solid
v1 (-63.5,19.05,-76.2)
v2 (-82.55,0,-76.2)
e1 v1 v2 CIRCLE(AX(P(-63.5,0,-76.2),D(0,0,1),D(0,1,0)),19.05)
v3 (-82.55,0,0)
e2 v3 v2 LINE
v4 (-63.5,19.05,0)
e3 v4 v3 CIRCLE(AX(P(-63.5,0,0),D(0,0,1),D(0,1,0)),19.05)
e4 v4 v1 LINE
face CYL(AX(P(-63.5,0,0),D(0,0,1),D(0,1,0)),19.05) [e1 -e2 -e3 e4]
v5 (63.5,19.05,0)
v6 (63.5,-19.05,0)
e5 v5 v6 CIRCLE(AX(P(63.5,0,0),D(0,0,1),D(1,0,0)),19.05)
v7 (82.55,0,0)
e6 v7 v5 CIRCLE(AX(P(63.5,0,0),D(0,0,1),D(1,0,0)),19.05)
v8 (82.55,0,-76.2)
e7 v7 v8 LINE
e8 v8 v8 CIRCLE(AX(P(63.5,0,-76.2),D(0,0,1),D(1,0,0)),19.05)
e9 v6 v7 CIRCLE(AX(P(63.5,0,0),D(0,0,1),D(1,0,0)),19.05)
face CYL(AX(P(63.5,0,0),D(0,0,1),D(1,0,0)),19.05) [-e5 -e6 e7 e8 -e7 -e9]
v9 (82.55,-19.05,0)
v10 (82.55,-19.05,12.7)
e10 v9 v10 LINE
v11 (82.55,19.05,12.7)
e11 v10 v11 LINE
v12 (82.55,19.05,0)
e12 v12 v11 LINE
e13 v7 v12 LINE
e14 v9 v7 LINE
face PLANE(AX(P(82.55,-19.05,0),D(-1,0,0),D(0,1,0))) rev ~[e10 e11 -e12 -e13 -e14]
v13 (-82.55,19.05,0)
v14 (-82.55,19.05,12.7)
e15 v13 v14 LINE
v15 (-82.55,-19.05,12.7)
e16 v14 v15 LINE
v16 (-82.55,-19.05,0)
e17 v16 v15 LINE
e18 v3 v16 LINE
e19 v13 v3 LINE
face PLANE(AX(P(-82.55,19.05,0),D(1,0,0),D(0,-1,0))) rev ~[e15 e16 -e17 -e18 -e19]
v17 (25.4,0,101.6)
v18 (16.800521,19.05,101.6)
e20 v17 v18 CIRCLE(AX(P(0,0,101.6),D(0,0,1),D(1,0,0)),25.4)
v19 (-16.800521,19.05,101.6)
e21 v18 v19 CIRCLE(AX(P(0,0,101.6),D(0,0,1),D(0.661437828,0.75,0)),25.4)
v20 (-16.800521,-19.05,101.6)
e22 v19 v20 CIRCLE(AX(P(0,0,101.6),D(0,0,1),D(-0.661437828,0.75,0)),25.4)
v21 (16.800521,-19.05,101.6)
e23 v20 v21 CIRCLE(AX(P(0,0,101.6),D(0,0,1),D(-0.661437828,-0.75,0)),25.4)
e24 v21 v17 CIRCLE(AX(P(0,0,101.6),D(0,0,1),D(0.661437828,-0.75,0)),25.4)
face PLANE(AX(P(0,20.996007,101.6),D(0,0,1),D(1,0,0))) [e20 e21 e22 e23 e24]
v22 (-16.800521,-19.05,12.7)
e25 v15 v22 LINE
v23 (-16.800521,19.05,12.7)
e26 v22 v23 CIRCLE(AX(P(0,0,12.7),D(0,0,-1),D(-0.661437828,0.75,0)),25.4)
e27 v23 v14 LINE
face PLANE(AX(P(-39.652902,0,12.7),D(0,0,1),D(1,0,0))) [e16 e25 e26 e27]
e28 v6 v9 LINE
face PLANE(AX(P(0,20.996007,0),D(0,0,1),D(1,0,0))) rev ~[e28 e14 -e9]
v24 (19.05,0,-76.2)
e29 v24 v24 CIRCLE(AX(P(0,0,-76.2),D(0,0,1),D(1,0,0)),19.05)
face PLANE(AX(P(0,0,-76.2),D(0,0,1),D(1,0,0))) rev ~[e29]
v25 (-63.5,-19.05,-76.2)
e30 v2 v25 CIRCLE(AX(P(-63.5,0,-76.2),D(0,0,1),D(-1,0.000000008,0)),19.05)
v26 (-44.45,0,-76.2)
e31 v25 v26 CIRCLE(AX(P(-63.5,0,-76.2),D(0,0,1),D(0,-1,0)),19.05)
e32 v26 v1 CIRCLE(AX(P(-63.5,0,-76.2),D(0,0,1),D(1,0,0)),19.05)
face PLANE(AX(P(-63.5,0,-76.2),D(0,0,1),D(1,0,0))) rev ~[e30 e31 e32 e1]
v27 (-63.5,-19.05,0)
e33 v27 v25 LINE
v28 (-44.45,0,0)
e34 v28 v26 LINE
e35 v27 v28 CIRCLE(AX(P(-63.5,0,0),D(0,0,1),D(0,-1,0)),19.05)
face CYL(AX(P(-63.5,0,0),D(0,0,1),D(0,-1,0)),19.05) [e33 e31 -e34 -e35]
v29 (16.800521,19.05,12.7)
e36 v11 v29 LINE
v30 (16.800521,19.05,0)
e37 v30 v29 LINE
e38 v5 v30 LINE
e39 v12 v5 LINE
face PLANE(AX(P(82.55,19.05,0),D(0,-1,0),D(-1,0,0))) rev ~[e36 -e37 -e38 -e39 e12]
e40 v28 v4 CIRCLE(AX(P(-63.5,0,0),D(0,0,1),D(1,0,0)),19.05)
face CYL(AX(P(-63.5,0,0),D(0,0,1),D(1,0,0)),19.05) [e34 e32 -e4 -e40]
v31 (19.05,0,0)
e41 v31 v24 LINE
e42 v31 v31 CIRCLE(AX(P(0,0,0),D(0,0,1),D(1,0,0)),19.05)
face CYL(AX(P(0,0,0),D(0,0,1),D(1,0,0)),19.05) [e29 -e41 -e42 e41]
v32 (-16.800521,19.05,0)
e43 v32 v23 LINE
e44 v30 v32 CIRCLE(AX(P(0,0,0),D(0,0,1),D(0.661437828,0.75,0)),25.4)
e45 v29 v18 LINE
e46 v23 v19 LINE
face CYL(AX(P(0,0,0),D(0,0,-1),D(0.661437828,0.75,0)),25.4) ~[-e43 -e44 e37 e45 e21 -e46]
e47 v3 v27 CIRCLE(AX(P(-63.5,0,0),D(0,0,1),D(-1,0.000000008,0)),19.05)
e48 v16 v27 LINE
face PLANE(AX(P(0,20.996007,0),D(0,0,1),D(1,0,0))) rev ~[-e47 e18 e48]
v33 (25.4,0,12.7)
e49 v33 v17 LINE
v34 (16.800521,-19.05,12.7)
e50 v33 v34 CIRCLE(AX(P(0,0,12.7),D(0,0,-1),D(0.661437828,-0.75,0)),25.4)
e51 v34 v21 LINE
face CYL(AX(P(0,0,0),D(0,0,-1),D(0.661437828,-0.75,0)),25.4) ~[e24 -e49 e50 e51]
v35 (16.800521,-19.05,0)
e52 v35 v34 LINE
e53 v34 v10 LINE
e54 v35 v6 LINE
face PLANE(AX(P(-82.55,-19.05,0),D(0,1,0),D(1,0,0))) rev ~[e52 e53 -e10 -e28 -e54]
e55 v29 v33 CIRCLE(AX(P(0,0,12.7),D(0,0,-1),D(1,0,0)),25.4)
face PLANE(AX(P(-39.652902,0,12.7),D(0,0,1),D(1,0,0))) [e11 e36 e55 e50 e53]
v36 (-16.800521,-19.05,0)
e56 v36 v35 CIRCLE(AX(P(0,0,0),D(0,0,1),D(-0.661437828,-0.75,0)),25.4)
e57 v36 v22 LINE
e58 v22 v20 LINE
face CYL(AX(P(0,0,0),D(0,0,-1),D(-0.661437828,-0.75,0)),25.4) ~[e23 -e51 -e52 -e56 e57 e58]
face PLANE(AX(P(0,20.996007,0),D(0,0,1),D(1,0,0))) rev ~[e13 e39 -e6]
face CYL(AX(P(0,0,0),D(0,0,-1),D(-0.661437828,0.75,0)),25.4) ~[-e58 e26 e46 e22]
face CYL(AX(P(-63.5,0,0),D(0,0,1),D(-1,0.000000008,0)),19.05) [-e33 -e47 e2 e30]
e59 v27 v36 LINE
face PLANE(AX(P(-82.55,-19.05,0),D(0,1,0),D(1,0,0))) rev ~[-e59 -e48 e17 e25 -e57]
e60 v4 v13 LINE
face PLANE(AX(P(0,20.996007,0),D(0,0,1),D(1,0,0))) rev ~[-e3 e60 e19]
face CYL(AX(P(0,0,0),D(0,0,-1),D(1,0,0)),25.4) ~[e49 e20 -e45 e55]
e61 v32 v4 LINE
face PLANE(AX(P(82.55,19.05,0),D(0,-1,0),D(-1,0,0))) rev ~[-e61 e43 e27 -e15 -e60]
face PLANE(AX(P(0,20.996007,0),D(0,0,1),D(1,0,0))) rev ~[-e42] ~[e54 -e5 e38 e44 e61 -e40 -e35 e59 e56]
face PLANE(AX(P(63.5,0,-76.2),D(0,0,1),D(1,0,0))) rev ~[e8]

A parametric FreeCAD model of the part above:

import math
import FreeCAD as App
import Part
import Sketcher
from FreeCAD import Vector
Q = App.Units.Quantity


def add_polygon(sketch, points):
    """Adds a closed chain of lines whose ends are joined by coincident constraints."""
    first, n = sketch.GeometryCount, len(points)
    for a, b in zip(points, points[1:] + points[:1]):
        sketch.addGeometry(Part.LineSegment(App.Vector(*a, 0), App.Vector(*b, 0)), False)
    for i in range(n):
        sketch.addConstraint(Sketcher.Constraint("Coincident", first + i, 2, first + (i + 1) % n, 1))

doc = App.newDocument("Part")
body = doc.addObject("PartDesign::Body", "Body")

sketch1 = body.newObject("Sketcher::SketchObject", "Sketch")
sketch1.AttachmentSupport = (doc.getObject("XY_Plane"), [""])
sketch1.MapMode = "FlatFace"
add_polygon(sketch1, [(83, -19), (83, 19), (-83, 19), (-83, -19)])
sketch1.addConstraint([
    Sketcher.Constraint("Vertical", 0),
    Sketcher.Constraint("Horizontal", 1),
    Sketcher.Constraint("Vertical", 2),
    Sketcher.Constraint("Horizontal", 3),
    Sketcher.Constraint("Symmetric", 0, 2, 2, 2, -1, 1),
    Sketcher.Constraint("DistanceX", 1, 2, 1, 1, Q("6.5 in")),
    Sketcher.Constraint("DistanceY", 0, 1, 0, 2, Q("1.5 in")),
])
pad1 = body.newObject("PartDesign::Pad", "Pad")
pad1.Profile = sketch1
pad1.Length = Q("0.5 in")

sketch2 = body.newObject("Sketcher::SketchObject", "Sketch001")
sketch2.AttachmentSupport = (doc.getObject("XY_Plane"), [""])
sketch2.MapMode = "FlatFace"
sketch2.addGeometry([
    Part.ArcOfCircle(Part.Circle(Vector(0, 0, 0), Vector(0, 0, 1), 25), math.radians(49), math.radians(131)),
    Part.ArcOfCircle(Part.Circle(Vector(0, 0, 0), Vector(0, 0, 1), 25), math.radians(131), math.radians(229)),
    Part.ArcOfCircle(Part.Circle(Vector(0, 0, 0), Vector(0, 0, 1), 25), math.radians(-131), math.radians(-49)),
    Part.ArcOfCircle(Part.Circle(Vector(0, 0, 0), Vector(0, 0, 1), 25), math.radians(-49), math.radians(0)),
    Part.ArcOfCircle(Part.Circle(Vector(0, 0, 0), Vector(0, 0, 1), 25), math.radians(0), math.radians(49)),
], False)
sketch2.addConstraint([
    Sketcher.Constraint("Tangent", 0, 2, 1, 1),
    Sketcher.Constraint("Tangent", 1, 2, 2, 1),
    Sketcher.Constraint("Tangent", 2, 2, 3, 1),
    Sketcher.Constraint("Tangent", 3, 2, 4, 1),
    Sketcher.Constraint("Tangent", 4, 2, 0, 1),
    Sketcher.Constraint("Coincident", 0, 3, -1, 1),
    Sketcher.Constraint("Coincident", 2, 3, -1, 1),
    Sketcher.Constraint("PointOnObject", 3, 2, -1),
    Sketcher.Constraint("Horizontal", 1, 2, 2, 2),
    Sketcher.Constraint("Horizontal", 0, 2, 4, 2),
    Sketcher.Constraint("Vertical", 0, 2, 1, 2),
    Sketcher.Constraint("Radius", 0, Q("1 in")),
    Sketcher.Constraint("DistanceY", -1, 1, 0, 2, Q("0.75 in")),
])
pad2 = body.newObject("PartDesign::Pad", "Pad001")
pad2.Profile = sketch2
pad2.Length = Q("4 in")

sketch3 = body.newObject("Sketcher::SketchObject", "Sketch002")
sketch3.AttachmentSupport = (doc.getObject("XY_Plane"), [""])
sketch3.MapMode = "FlatFace"
sketch3.addGeometry([
    Part.Circle(Vector(64, 0, 0), Vector(0, 0, 1), 19),
    Part.Circle(Vector(0, 0, 0), Vector(0, 0, 1), 19),
    Part.ArcOfCircle(Part.Circle(Vector(-64, 0, 0), Vector(0, 0, 1), 19), math.radians(0), math.radians(90)),
    Part.ArcOfCircle(Part.Circle(Vector(-64, 0, 0), Vector(0, 0, 1), 19), math.radians(90), math.radians(180)),
    Part.ArcOfCircle(Part.Circle(Vector(-64, 0, 0), Vector(0, 0, 1), 19), math.radians(180), math.radians(270)),
    Part.ArcOfCircle(Part.Circle(Vector(-64, 0, 0), Vector(0, 0, 1), 19), math.radians(-90), math.radians(0)),
], False)
sketch3.addConstraint([
    Sketcher.Constraint("Tangent", 2, 2, 3, 1),
    Sketcher.Constraint("Tangent", 3, 2, 4, 1),
    Sketcher.Constraint("Tangent", 4, 2, 5, 1),
    Sketcher.Constraint("Tangent", 5, 2, 2, 1),
    Sketcher.Constraint("Coincident", 1, 3, -1, 1),
    Sketcher.Constraint("Equal", 0, 1),
    Sketcher.Constraint("Equal", 1, 2),
    Sketcher.Constraint("Equal", 2, 3),
    Sketcher.Constraint("Symmetric", 0, 3, 2, 3, -1, 1),
    Sketcher.Constraint("Symmetric", 2, 2, 4, 2, -1),
    Sketcher.Constraint("PointOnObject", 3, 2, -1),
    Sketcher.Constraint("PointOnObject", 5, 2, -1),
    Sketcher.Constraint("Vertical", 5, 3, 2, 2),
    Sketcher.Constraint("Diameter", 0, Q("1.5 in")),
    Sketcher.Constraint("DistanceX", 2, 3, 0, 3, Q("5 in")),
])
pad3 = body.newObject("PartDesign::Pad", "Pad002")
pad3.Profile = sketch3
pad3.Length = Q("3 in")
pad3.Reversed = True

doc.recompute()
